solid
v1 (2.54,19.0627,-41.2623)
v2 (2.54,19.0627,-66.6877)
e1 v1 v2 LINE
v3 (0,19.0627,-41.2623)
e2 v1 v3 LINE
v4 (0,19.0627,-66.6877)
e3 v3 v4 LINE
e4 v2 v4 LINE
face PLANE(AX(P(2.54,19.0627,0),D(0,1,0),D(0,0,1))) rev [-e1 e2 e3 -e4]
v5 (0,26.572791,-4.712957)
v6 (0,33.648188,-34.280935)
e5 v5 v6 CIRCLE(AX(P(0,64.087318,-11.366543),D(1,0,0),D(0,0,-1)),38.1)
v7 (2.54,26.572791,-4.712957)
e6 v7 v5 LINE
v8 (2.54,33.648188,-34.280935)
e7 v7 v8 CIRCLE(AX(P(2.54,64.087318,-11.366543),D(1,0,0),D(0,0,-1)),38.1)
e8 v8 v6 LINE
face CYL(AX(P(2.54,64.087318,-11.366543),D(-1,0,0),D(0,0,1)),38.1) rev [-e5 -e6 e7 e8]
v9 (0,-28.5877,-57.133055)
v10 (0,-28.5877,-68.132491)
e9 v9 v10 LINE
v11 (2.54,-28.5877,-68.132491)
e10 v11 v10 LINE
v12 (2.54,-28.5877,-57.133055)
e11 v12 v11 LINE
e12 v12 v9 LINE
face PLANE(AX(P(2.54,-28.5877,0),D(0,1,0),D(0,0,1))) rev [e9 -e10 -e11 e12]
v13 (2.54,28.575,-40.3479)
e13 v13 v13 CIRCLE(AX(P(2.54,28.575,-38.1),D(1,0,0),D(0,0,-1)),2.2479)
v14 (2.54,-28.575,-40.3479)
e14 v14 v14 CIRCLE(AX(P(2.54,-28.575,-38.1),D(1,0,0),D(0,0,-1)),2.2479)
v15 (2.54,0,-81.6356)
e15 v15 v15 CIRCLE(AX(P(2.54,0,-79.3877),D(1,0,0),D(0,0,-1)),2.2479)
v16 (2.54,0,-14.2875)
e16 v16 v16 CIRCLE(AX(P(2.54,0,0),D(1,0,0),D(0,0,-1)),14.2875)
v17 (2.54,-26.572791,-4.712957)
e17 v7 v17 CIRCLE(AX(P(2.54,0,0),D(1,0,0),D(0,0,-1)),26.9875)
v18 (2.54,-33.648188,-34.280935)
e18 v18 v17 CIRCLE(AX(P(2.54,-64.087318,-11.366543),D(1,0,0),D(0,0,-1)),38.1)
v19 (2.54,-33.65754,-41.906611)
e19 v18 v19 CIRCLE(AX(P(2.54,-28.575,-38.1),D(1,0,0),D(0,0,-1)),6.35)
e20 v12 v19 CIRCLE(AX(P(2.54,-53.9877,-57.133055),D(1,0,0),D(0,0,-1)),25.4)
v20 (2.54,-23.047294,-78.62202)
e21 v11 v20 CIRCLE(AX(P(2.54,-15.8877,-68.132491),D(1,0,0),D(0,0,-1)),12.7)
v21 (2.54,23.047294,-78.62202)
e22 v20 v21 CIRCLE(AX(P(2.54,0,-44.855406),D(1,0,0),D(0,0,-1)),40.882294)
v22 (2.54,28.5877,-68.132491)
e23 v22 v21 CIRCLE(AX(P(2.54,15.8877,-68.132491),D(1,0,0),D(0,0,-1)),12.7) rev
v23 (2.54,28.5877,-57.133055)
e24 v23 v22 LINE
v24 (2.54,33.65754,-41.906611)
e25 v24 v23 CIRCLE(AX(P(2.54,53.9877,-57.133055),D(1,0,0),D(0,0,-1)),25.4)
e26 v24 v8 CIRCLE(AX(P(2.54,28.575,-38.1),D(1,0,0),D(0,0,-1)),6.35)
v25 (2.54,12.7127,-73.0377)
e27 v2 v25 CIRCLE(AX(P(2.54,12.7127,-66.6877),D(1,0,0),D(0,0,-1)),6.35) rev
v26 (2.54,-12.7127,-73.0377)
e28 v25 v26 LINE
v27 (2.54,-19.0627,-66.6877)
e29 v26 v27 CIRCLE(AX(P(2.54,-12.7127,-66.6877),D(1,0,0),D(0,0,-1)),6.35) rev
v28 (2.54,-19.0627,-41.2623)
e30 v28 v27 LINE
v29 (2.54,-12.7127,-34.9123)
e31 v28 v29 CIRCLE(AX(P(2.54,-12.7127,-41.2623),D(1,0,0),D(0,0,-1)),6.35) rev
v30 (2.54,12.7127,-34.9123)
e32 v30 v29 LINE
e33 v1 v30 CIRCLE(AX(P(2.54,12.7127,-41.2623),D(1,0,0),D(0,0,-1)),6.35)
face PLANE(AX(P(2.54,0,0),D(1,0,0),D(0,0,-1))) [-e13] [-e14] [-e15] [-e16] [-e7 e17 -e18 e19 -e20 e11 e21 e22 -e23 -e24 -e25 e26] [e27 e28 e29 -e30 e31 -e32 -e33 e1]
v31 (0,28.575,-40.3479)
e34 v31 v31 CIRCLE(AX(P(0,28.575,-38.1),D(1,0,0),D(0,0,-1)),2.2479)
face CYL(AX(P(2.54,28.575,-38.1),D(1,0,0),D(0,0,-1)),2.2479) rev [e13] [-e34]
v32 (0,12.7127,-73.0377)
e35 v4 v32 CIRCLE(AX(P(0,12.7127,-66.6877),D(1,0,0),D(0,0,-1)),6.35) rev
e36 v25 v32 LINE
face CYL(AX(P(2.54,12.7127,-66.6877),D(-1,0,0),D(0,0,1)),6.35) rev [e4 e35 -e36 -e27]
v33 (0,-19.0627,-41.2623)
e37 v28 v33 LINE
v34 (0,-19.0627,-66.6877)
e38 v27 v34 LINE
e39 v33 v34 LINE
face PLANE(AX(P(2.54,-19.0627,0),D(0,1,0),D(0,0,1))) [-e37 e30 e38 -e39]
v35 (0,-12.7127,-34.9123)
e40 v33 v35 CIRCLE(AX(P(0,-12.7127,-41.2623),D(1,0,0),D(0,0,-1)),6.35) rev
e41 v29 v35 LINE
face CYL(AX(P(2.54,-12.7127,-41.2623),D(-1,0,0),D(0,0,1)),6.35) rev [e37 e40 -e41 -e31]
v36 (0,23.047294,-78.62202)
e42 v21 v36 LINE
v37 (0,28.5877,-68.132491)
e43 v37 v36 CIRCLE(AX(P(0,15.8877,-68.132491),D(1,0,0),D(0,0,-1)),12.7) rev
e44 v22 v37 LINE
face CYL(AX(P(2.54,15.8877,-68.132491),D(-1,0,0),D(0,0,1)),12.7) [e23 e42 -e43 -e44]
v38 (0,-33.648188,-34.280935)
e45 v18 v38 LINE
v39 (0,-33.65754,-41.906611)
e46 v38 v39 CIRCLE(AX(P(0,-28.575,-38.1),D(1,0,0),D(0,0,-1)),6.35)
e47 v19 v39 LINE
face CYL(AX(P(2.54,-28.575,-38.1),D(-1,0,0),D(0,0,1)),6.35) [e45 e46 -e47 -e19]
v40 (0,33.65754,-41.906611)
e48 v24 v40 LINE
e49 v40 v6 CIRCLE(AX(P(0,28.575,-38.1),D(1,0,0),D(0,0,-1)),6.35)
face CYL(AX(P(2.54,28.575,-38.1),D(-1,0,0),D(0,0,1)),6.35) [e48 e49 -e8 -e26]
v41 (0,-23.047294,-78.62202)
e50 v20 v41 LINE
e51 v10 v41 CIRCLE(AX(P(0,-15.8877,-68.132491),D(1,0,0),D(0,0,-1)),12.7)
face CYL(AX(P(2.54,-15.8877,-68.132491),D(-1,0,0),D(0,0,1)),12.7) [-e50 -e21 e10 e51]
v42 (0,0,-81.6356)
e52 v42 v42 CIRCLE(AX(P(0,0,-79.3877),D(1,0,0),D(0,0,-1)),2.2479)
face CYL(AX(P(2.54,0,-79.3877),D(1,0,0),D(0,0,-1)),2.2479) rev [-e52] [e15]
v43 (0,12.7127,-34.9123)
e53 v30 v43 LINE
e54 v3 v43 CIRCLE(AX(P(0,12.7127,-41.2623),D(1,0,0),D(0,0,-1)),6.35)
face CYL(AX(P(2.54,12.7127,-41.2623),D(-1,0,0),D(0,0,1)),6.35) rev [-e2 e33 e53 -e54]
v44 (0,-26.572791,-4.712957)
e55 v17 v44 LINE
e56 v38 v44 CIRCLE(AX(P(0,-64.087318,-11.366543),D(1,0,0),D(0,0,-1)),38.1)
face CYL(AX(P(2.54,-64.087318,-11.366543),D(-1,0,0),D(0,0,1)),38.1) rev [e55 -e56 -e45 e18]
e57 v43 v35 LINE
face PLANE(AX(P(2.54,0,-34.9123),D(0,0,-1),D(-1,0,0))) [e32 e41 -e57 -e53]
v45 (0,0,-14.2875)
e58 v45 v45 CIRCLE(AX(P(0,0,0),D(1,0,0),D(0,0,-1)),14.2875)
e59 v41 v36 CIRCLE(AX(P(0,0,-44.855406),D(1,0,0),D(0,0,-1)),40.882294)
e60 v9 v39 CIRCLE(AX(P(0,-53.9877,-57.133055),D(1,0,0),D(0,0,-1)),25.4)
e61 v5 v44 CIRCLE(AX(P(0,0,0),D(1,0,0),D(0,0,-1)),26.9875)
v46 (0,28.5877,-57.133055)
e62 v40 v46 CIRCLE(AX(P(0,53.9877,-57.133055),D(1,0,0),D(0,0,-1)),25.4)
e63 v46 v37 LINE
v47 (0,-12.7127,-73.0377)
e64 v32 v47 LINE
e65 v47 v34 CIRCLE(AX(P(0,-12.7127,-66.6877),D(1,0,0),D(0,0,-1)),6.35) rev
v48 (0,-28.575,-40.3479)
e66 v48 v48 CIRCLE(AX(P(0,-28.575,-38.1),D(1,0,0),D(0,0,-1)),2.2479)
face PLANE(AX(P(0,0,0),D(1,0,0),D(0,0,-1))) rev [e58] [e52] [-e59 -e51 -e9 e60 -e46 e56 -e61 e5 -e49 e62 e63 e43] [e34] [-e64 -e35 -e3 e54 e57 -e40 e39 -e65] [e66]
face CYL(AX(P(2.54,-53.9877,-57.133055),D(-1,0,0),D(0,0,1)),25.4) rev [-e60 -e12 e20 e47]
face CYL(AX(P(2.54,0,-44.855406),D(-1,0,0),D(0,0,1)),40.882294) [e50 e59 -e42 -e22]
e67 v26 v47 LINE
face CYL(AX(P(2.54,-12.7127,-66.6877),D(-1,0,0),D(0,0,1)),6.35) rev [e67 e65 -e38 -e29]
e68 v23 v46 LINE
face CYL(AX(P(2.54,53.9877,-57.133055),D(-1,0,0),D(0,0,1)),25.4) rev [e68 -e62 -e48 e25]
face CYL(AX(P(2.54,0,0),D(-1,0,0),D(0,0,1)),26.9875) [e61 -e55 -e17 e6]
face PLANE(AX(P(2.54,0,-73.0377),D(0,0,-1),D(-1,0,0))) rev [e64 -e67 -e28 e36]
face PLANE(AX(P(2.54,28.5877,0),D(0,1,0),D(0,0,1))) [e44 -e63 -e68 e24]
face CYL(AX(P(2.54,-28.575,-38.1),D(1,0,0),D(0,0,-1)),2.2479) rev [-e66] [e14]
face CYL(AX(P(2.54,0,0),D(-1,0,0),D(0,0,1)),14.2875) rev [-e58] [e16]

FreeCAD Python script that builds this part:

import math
import FreeCAD as App
import Part
import Sketcher
from FreeCAD import Vector
Q = App.Units.Quantity

doc = App.newDocument("Part")
params = doc.addObject("Spreadsheet::Sheet", "Params")
for row, (alias, value) in enumerate([
    ("sketch1_radius", "1 in"),
    ("sketch1_radius2", "0.5 in"),
    ("sketch1_radius3", "1.5 in"),
    ("sketch1_radius4", "0.25 in"),
    ("sketch1_diameter", "1.125 in"),
    ("pad1_length", "0.1 in"),
    ("sketch2_diameter", "0.177 in"),
    ("hole_diameter", "0.177 in"),
], start=1):
    params.set(f"A{row}", alias)
    params.set(f"B{row}", "=" + value)
    params.setAlias(f"B{row}", alias)

body = doc.addObject("PartDesign::Body", "Body")

# Sketch on YZ plane
sketch1 = body.newObject("Sketcher::SketchObject", "Sketch")
sketch1.AttachmentSupport = (doc.getObject("YZ_Plane"), [""])
sketch1.MapMode = "FlatFace"
sketch1.addGeometry([
    Part.LineSegment(Vector(-29, -57, 0), Vector(-29, -68, 0)),  # 0
    Part.ArcOfCircle(Part.Circle(Vector(-16, -68, 0), Vector(0, 0, 1), 13), math.radians(180), math.radians(236)),  # 1
    Part.ArcOfCircle(Part.Circle(Vector(0, -45, 0), Vector(0, 0, 1), 41), math.radians(-124), math.radians(-56)),  # 2
    Part.ArcOfCircle(Part.Circle(Vector(16, -68, 0), Vector(0, 0, 1), 13), math.radians(-56), math.radians(0)),  # 3
    Part.LineSegment(Vector(29, -68, 0), Vector(29, -57, 0)),  # 4
    Part.ArcOfCircle(Part.Circle(Vector(54, -57, 0), Vector(0, 0, 1), 25), math.radians(143), math.radians(180)),  # 5
    Part.ArcOfCircle(Part.Circle(Vector(29, -38, 0), Vector(0, 0, 1), 6), math.radians(-37), math.radians(37)),  # 6
    Part.ArcOfCircle(Part.Circle(Vector(64, -11, 0), Vector(0, 0, 1), 38), math.radians(170), math.radians(217)),  # 7
    Part.ArcOfCircle(Part.Circle(Vector(0, 0, 0), Vector(0, 0, 1), 27), math.radians(-10), math.radians(190)),  # 8
    Part.ArcOfCircle(Part.Circle(Vector(-64, -11, 0), Vector(0, 0, 1), 38), math.radians(-37), math.radians(10)),  # 9
    Part.ArcOfCircle(Part.Circle(Vector(-29, -38, 0), Vector(0, 0, 1), 6), math.radians(143), math.radians(217)),  # 10
    Part.ArcOfCircle(Part.Circle(Vector(-54, -57, 0), Vector(0, 0, 1), 25), math.radians(0), math.radians(37)),  # 11
    Part.Circle(Vector(0, 0, 0), Vector(0, 0, 1), 14),  # 12
    Part.ArcOfCircle(Part.Circle(Vector(13, -41, 0), Vector(0, 0, 1), 6), math.radians(0), math.radians(90)),  # 13
    Part.LineSegment(Vector(19, -41, 0), Vector(19, -67, 0)),  # 14
    Part.ArcOfCircle(Part.Circle(Vector(13, -67, 0), Vector(0, 0, 1), 6), math.radians(-90), math.radians(0)),  # 15
    Part.LineSegment(Vector(13, -73, 0), Vector(-13, -73, 0)),  # 16
    Part.ArcOfCircle(Part.Circle(Vector(-13, -67, 0), Vector(0, 0, 1), 6), math.radians(180), math.radians(270)),  # 17
    Part.LineSegment(Vector(-19, -67, 0), Vector(-19, -41, 0)),  # 18
    Part.ArcOfCircle(Part.Circle(Vector(-13, -41, 0), Vector(0, 0, 1), 6), math.radians(90), math.radians(180)),  # 19
    Part.LineSegment(Vector(-13, -35, 0), Vector(13, -35, 0)),  # 20
], False)
sketch1.addConstraint([
    Sketcher.Constraint("Tangent", 0, 2, 1, 1),
    Sketcher.Constraint("Tangent", 1, 2, 2, 1),
    Sketcher.Constraint("Tangent", 2, 2, 3, 1),
    Sketcher.Constraint("Tangent", 3, 2, 4, 1),
    Sketcher.Constraint("Tangent", 4, 2, 5, 2),
    Sketcher.Constraint("Tangent", 5, 1, 6, 1),
    Sketcher.Constraint("Tangent", 6, 2, 7, 2),
    Sketcher.Constraint("Tangent", 7, 1, 8, 1),
    Sketcher.Constraint("Tangent", 8, 2, 9, 2),
    Sketcher.Constraint("Tangent", 9, 1, 10, 1),
    Sketcher.Constraint("Tangent", 10, 2, 11, 2),
    Sketcher.Constraint("Tangent", 11, 1, 0, 1),
    Sketcher.Constraint("Tangent", 13, 1, 14, 1),
    Sketcher.Constraint("Tangent", 14, 2, 15, 2),
    Sketcher.Constraint("Tangent", 15, 1, 16, 1),
    Sketcher.Constraint("Tangent", 16, 2, 17, 2),
    Sketcher.Constraint("Tangent", 17, 1, 18, 1),
    Sketcher.Constraint("Tangent", 18, 2, 19, 2),
    Sketcher.Constraint("Tangent", 19, 1, 20, 1),
    Sketcher.Constraint("Tangent", 20, 2, 13, 2),
    Sketcher.Constraint("Vertical", 0),
    Sketcher.Constraint("Vertical", 4),
    Sketcher.Constraint("Vertical", 14),
    Sketcher.Constraint("Horizontal", 16),
    Sketcher.Constraint("Vertical", 18),
    Sketcher.Constraint("Horizontal", 20),
    Sketcher.Constraint("Coincident", 8, 3, -1, 1),
    Sketcher.Constraint("Coincident", 12, 3, -1, 1),
    Sketcher.Constraint("Equal", 1, 3),
    Sketcher.Constraint("Equal", 7, 9),
    Sketcher.Constraint("Equal", 6, 10),
    Sketcher.Constraint("Equal", 5, 11),
    Sketcher.Constraint("Equal", 10, 13),
    Sketcher.Constraint("Equal", 13, 15),
    Sketcher.Constraint("Equal", 15, 17),
    Sketcher.Constraint("Equal", 17, 19),
    Sketcher.Constraint("Symmetric", 1, 3, 3, 3, -2),
    Sketcher.Constraint("Symmetric", 6, 3, 10, 3, -2),
    Sketcher.Constraint("Equal", 20, 14),
    Sketcher.Constraint("Radius", 5, Q("1 in")),
    Sketcher.Constraint("Radius", 1, Q("0.5 in")),
    Sketcher.Constraint("Radius", 7, Q("1.5 in")),
    Sketcher.Constraint("Radius", 6, Q("0.25 in")),
    Sketcher.Constraint("Diameter", 12, Q("1.125 in")),
    Sketcher.Constraint("Radius", 8, Q("1.0625 in")),
    Sketcher.Constraint("DistanceY", 6, 3, -1, 1, Q("1.5 in")),
    Sketcher.Constraint("DistanceX", 16, 2, 16, 1, Q("1.001 in")),
    Sketcher.Constraint("DistanceX", -1, 1, 6, 3, Q("1.125 in")),
    Sketcher.Constraint("DistanceX", 1, 3, 3, 3, Q("1.251 in")),
    Sketcher.Constraint("DistanceX", 13, 3, 3, 3, Q("0.125 in")),
    Sketcher.Constraint("DistanceY", 13, 3, -1, 1, Q("1.6245 in")),
    Sketcher.Constraint("Radius", 2, 40.882294),
    Sketcher.Constraint("DistanceY", 0, 2, 0, 1, 10.999436),
])
sketch1.setExpression("Constraints[39]", "Params.sketch1_radius")
sketch1.setExpression("Constraints[40]", "Params.sketch1_radius2")
sketch1.setExpression("Constraints[41]", "Params.sketch1_radius3")
sketch1.setExpression("Constraints[42]", "Params.sketch1_radius4")
sketch1.setExpression("Constraints[43]", "Params.sketch1_diameter")
pad1 = body.newObject("PartDesign::Pad", "Pad")
pad1.Profile = sketch1
pad1.setExpression("Length", "Params.pad1_length")

# Sketch on YZ plane
sketch2 = body.newObject("Sketcher::SketchObject", "Sketch001")
sketch2.AttachmentSupport = (doc.getObject("YZ_Plane"), [""])
sketch2.MapMode = "FlatFace"
sketch2.AttachmentOffset = App.Placement(Vector(0, 0, 0.1 * 25.4), App.Rotation())
sketch2.addGeometry([
    Part.Circle(Vector(28.6, -38.1, 0), Vector(0, 0, 1), 2.2),
    Part.Circle(Vector(0, -79.4, 0), Vector(0, 0, 1), 2.2),
    Part.Circle(Vector(-28.6, -38.1, 0), Vector(0, 0, 1), 2.2),
], False)
sketch2.addConstraint([
    Sketcher.Constraint("Equal", 0, 1),
    Sketcher.Constraint("Equal", 1, 2),
    Sketcher.Constraint("Symmetric", 0, 3, 2, 3, -2),
    Sketcher.Constraint("PointOnObject", 1, 3, -2),
    Sketcher.Constraint("Diameter", 0, Q("0.177 in")),
    Sketcher.Constraint("DistanceY", 0, 3, -1, 1, Q("1.5 in")),
    Sketcher.Constraint("DistanceX", 2, 3, 0, 3, Q("2.25 in")),
    Sketcher.Constraint("DistanceY", 1, 3, -1, 1, Q("3.1255 in")),
])
sketch2.setExpression("Constraints[4]", "Params.sketch2_diameter")
doc.recompute()
hole = body.newObject("PartDesign::Hole", "Hole")
hole.Profile = sketch2
hole.ThreadType = "None"
hole.setExpression("Diameter", "Params.hole_diameter")
hole.DepthType = "ThroughAll"

doc.recompute()
